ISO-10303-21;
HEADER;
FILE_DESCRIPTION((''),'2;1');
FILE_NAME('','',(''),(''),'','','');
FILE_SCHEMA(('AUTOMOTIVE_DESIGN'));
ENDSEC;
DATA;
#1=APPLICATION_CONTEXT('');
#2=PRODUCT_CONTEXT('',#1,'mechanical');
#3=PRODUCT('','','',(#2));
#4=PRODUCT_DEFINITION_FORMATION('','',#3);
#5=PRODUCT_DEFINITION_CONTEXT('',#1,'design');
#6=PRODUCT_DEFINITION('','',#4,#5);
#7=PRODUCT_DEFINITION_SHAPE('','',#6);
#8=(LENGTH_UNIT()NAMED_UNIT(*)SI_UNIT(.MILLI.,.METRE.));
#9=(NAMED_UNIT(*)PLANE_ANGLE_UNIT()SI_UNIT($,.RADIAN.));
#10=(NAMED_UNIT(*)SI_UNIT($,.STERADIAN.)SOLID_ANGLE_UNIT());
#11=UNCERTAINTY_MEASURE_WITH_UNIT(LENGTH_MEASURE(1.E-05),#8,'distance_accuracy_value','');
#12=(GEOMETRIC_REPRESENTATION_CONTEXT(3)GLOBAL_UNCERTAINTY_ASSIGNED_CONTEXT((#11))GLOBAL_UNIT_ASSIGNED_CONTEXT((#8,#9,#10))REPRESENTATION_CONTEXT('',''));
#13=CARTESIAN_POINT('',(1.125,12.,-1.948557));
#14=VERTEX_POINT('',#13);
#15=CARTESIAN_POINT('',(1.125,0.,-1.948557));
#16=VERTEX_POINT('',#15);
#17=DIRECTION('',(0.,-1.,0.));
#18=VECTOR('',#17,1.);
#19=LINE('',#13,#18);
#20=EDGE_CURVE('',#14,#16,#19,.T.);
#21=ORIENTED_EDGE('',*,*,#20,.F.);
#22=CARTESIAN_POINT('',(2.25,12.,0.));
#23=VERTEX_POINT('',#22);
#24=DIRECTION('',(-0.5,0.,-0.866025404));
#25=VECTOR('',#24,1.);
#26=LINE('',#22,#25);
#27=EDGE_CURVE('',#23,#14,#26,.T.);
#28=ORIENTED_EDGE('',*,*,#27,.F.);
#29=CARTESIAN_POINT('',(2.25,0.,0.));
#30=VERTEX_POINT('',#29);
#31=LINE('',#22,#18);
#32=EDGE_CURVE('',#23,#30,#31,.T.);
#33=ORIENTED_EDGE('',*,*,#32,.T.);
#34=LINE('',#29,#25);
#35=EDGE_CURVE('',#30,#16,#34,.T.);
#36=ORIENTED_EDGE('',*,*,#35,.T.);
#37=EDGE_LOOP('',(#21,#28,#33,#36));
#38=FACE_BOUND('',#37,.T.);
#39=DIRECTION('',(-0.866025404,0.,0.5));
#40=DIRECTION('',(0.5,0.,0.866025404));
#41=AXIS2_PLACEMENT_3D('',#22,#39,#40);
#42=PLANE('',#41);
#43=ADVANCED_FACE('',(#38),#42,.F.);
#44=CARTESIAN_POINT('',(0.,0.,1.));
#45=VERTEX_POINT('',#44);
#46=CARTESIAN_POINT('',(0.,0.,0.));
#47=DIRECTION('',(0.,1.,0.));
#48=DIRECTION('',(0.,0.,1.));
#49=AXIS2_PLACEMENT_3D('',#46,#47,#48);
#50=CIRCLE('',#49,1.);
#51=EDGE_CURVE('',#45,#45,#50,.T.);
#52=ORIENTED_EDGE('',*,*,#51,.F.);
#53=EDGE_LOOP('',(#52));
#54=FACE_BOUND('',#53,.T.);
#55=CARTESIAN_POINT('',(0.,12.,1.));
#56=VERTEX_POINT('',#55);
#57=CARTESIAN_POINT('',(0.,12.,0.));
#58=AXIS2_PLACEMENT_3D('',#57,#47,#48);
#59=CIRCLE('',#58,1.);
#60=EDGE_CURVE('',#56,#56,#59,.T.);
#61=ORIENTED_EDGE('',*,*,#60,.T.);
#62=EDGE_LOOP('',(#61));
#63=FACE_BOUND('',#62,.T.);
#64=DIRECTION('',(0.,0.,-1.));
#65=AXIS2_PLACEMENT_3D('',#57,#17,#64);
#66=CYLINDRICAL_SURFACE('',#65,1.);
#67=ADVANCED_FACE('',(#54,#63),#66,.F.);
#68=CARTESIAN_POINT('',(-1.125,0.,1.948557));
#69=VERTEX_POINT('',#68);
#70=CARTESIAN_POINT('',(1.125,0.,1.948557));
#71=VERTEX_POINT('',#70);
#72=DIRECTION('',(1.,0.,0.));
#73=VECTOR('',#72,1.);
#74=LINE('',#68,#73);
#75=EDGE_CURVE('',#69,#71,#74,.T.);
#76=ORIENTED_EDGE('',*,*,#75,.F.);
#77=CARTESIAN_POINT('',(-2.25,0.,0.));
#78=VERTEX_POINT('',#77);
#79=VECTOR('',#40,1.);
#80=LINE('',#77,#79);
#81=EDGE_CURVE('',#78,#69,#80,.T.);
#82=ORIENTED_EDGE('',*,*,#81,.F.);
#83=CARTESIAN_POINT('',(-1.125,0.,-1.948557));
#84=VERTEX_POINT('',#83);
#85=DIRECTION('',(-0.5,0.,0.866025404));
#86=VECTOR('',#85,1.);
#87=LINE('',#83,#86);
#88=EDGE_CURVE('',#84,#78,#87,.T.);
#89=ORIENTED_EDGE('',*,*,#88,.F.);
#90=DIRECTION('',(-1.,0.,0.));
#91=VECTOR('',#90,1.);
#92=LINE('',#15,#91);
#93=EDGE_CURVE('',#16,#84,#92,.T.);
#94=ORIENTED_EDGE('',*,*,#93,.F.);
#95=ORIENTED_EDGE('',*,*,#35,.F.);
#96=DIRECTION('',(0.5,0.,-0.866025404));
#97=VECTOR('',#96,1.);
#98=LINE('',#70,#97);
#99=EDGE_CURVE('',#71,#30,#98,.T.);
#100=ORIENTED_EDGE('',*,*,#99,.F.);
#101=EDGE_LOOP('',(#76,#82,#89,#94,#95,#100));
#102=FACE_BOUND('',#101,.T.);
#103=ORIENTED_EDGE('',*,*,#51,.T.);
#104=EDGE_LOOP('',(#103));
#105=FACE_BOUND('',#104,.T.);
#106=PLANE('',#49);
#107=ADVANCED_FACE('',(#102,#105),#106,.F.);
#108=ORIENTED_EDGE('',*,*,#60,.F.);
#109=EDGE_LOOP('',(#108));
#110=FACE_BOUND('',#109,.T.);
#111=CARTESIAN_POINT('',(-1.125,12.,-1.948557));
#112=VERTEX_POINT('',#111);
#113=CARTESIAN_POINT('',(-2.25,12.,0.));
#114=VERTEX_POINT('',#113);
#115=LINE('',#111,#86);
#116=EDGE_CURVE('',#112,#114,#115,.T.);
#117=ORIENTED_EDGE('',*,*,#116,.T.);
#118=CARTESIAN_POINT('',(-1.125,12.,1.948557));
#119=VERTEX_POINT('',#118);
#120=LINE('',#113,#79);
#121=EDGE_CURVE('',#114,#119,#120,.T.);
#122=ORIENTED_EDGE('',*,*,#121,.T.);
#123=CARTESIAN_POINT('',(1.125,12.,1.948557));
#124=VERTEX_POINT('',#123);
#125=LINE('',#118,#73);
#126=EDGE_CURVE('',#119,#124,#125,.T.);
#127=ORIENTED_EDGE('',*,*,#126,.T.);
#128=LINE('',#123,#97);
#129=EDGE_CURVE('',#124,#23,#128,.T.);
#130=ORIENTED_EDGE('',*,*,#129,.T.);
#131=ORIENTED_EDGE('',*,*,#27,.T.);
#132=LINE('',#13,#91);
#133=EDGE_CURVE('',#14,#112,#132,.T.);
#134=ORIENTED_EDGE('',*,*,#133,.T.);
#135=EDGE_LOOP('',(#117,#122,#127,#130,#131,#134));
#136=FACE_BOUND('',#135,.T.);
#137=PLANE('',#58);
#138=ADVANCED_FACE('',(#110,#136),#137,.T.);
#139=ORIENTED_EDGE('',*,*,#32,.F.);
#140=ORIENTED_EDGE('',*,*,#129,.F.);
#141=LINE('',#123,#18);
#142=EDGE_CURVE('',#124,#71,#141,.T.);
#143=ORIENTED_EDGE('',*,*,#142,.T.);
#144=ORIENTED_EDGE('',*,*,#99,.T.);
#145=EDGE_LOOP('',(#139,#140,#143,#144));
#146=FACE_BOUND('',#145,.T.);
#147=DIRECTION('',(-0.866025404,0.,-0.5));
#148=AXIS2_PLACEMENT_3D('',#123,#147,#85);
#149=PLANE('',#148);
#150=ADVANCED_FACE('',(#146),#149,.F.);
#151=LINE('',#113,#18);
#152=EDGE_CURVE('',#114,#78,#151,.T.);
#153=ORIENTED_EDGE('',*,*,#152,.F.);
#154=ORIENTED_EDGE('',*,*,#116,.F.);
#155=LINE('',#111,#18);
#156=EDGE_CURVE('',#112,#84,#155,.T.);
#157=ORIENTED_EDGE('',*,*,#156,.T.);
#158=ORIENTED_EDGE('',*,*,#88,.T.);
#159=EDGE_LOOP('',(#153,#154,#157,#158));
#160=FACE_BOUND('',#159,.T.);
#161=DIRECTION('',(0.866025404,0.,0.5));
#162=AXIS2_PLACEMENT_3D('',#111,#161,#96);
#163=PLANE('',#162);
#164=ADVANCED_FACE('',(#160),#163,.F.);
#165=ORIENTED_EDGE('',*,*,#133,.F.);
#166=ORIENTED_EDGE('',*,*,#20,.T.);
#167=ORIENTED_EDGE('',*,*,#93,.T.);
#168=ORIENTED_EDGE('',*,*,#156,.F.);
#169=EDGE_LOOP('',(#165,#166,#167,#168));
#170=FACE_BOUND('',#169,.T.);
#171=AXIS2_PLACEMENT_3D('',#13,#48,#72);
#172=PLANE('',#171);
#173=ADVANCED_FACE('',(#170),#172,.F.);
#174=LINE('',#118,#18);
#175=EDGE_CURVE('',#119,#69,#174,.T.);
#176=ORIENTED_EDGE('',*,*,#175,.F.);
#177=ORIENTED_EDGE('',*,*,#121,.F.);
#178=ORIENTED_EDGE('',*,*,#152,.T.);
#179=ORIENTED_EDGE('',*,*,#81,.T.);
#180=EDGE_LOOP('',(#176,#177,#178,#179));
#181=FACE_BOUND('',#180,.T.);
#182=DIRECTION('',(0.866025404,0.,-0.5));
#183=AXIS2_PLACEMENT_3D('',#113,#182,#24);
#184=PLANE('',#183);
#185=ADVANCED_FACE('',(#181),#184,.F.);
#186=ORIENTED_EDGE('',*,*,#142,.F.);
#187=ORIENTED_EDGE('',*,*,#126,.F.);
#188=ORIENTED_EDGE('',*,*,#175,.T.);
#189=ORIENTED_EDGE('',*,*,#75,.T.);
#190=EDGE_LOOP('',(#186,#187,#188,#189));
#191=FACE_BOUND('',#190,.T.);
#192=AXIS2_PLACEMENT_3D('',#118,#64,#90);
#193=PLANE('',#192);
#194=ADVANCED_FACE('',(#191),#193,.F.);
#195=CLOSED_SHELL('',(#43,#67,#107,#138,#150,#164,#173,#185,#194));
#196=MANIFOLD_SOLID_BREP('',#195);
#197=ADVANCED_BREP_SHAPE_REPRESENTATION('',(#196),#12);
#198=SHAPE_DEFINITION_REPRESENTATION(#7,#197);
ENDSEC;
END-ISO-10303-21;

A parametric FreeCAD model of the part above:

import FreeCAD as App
import Part
import Sketcher
from FreeCAD import Vector
Q = App.Units.Quantity

doc = App.newDocument("Part")
params = doc.addObject("Spreadsheet::Sheet", "Params")
for row, (alias, value) in enumerate([
    ("sketch1_diameter", "2 mm"),
    ("sketch1_width", "2.25 mm"),
    ("sketch1_length", "2.25 mm"),
    ("pad1_length", "12 mm"),
], start=1):
    params.set(f"A{row}", alias)
    params.set(f"B{row}", "=" + value)
    params.setAlias(f"B{row}", alias)

body = doc.addObject("PartDesign::Body", "Body")

# Sketch on XZ plane
sketch1 = body.newObject("Sketcher::SketchObject", "Sketch")
sketch1.AttachmentSupport = (doc.getObject("XZ_Plane"), [""])
sketch1.MapMode = "FlatFace"
sketch1.addGeometry([
    Part.LineSegment(Vector(2.2, 0, 0), Vector(1.1, -1.9, 0)),  # 0
    Part.LineSegment(Vector(1.1, -1.9, 0), Vector(-1.1, -1.9, 0)),  # 1
    Part.LineSegment(Vector(-1.1, -1.9, 0), Vector(-2.2, 0, 0)),  # 2
    Part.LineSegment(Vector(-2.2, 0, 0), Vector(-1.1, 1.9, 0)),  # 3
    Part.LineSegment(Vector(-1.1, 1.9, 0), Vector(1.1, 1.9, 0)),  # 4
    Part.LineSegment(Vector(1.1, 1.9, 0), Vector(2.2, 0, 0)),  # 5
    Part.Circle(Vector(0, 0, 0), Vector(0, 0, 1), 1),  # 6
], False)
sketch1.addConstraint([
    Sketcher.Constraint("Coincident", 0, 2, 1, 1),
    Sketcher.Constraint("Coincident", 1, 2, 2, 1),
    Sketcher.Constraint("Coincident", 2, 2, 3, 1),
    Sketcher.Constraint("Coincident", 3, 2, 4, 1),
    Sketcher.Constraint("Coincident", 4, 2, 5, 1),
    Sketcher.Constraint("Coincident", 5, 2, 0, 1),
    Sketcher.Constraint("Horizontal", 1),
    Sketcher.Constraint("Horizontal", 4),
    Sketcher.Constraint("Coincident", 6, 3, -1, 1),
    Sketcher.Constraint("Symmetric", 0, 2, 3, 2, -1, 1),
    Sketcher.Constraint("Symmetric", 2, 2, 5, 2, -1, 1),
    Sketcher.Constraint("PointOnObject", 2, 2, -1),
    Sketcher.Constraint("Parallel", 2, 5),
    Sketcher.Constraint("Vertical", 1, 2, 3, 2),
    Sketcher.Constraint("Diameter", 6, Q("2 mm")),
    Sketcher.Constraint("Angle", 0, Q("-120 deg")),
    Sketcher.Constraint("DistanceX", 1, 2, 1, 1, Q("2.25 mm")),
    Sketcher.Constraint("Distance", 0, Q("2.25 mm")),
])
sketch1.setExpression("Constraints[14]", "Params.sketch1_diameter")
sketch1.setExpression("Constraints[16]", "Params.sketch1_width")
sketch1.setExpression("Constraints[17]", "Params.sketch1_length")
pad1 = body.newObject("PartDesign::Pad", "Pad")
pad1.Profile = sketch1
pad1.setExpression("Length", "Params.pad1_length")
pad1.Reversed = True

doc.recompute()
